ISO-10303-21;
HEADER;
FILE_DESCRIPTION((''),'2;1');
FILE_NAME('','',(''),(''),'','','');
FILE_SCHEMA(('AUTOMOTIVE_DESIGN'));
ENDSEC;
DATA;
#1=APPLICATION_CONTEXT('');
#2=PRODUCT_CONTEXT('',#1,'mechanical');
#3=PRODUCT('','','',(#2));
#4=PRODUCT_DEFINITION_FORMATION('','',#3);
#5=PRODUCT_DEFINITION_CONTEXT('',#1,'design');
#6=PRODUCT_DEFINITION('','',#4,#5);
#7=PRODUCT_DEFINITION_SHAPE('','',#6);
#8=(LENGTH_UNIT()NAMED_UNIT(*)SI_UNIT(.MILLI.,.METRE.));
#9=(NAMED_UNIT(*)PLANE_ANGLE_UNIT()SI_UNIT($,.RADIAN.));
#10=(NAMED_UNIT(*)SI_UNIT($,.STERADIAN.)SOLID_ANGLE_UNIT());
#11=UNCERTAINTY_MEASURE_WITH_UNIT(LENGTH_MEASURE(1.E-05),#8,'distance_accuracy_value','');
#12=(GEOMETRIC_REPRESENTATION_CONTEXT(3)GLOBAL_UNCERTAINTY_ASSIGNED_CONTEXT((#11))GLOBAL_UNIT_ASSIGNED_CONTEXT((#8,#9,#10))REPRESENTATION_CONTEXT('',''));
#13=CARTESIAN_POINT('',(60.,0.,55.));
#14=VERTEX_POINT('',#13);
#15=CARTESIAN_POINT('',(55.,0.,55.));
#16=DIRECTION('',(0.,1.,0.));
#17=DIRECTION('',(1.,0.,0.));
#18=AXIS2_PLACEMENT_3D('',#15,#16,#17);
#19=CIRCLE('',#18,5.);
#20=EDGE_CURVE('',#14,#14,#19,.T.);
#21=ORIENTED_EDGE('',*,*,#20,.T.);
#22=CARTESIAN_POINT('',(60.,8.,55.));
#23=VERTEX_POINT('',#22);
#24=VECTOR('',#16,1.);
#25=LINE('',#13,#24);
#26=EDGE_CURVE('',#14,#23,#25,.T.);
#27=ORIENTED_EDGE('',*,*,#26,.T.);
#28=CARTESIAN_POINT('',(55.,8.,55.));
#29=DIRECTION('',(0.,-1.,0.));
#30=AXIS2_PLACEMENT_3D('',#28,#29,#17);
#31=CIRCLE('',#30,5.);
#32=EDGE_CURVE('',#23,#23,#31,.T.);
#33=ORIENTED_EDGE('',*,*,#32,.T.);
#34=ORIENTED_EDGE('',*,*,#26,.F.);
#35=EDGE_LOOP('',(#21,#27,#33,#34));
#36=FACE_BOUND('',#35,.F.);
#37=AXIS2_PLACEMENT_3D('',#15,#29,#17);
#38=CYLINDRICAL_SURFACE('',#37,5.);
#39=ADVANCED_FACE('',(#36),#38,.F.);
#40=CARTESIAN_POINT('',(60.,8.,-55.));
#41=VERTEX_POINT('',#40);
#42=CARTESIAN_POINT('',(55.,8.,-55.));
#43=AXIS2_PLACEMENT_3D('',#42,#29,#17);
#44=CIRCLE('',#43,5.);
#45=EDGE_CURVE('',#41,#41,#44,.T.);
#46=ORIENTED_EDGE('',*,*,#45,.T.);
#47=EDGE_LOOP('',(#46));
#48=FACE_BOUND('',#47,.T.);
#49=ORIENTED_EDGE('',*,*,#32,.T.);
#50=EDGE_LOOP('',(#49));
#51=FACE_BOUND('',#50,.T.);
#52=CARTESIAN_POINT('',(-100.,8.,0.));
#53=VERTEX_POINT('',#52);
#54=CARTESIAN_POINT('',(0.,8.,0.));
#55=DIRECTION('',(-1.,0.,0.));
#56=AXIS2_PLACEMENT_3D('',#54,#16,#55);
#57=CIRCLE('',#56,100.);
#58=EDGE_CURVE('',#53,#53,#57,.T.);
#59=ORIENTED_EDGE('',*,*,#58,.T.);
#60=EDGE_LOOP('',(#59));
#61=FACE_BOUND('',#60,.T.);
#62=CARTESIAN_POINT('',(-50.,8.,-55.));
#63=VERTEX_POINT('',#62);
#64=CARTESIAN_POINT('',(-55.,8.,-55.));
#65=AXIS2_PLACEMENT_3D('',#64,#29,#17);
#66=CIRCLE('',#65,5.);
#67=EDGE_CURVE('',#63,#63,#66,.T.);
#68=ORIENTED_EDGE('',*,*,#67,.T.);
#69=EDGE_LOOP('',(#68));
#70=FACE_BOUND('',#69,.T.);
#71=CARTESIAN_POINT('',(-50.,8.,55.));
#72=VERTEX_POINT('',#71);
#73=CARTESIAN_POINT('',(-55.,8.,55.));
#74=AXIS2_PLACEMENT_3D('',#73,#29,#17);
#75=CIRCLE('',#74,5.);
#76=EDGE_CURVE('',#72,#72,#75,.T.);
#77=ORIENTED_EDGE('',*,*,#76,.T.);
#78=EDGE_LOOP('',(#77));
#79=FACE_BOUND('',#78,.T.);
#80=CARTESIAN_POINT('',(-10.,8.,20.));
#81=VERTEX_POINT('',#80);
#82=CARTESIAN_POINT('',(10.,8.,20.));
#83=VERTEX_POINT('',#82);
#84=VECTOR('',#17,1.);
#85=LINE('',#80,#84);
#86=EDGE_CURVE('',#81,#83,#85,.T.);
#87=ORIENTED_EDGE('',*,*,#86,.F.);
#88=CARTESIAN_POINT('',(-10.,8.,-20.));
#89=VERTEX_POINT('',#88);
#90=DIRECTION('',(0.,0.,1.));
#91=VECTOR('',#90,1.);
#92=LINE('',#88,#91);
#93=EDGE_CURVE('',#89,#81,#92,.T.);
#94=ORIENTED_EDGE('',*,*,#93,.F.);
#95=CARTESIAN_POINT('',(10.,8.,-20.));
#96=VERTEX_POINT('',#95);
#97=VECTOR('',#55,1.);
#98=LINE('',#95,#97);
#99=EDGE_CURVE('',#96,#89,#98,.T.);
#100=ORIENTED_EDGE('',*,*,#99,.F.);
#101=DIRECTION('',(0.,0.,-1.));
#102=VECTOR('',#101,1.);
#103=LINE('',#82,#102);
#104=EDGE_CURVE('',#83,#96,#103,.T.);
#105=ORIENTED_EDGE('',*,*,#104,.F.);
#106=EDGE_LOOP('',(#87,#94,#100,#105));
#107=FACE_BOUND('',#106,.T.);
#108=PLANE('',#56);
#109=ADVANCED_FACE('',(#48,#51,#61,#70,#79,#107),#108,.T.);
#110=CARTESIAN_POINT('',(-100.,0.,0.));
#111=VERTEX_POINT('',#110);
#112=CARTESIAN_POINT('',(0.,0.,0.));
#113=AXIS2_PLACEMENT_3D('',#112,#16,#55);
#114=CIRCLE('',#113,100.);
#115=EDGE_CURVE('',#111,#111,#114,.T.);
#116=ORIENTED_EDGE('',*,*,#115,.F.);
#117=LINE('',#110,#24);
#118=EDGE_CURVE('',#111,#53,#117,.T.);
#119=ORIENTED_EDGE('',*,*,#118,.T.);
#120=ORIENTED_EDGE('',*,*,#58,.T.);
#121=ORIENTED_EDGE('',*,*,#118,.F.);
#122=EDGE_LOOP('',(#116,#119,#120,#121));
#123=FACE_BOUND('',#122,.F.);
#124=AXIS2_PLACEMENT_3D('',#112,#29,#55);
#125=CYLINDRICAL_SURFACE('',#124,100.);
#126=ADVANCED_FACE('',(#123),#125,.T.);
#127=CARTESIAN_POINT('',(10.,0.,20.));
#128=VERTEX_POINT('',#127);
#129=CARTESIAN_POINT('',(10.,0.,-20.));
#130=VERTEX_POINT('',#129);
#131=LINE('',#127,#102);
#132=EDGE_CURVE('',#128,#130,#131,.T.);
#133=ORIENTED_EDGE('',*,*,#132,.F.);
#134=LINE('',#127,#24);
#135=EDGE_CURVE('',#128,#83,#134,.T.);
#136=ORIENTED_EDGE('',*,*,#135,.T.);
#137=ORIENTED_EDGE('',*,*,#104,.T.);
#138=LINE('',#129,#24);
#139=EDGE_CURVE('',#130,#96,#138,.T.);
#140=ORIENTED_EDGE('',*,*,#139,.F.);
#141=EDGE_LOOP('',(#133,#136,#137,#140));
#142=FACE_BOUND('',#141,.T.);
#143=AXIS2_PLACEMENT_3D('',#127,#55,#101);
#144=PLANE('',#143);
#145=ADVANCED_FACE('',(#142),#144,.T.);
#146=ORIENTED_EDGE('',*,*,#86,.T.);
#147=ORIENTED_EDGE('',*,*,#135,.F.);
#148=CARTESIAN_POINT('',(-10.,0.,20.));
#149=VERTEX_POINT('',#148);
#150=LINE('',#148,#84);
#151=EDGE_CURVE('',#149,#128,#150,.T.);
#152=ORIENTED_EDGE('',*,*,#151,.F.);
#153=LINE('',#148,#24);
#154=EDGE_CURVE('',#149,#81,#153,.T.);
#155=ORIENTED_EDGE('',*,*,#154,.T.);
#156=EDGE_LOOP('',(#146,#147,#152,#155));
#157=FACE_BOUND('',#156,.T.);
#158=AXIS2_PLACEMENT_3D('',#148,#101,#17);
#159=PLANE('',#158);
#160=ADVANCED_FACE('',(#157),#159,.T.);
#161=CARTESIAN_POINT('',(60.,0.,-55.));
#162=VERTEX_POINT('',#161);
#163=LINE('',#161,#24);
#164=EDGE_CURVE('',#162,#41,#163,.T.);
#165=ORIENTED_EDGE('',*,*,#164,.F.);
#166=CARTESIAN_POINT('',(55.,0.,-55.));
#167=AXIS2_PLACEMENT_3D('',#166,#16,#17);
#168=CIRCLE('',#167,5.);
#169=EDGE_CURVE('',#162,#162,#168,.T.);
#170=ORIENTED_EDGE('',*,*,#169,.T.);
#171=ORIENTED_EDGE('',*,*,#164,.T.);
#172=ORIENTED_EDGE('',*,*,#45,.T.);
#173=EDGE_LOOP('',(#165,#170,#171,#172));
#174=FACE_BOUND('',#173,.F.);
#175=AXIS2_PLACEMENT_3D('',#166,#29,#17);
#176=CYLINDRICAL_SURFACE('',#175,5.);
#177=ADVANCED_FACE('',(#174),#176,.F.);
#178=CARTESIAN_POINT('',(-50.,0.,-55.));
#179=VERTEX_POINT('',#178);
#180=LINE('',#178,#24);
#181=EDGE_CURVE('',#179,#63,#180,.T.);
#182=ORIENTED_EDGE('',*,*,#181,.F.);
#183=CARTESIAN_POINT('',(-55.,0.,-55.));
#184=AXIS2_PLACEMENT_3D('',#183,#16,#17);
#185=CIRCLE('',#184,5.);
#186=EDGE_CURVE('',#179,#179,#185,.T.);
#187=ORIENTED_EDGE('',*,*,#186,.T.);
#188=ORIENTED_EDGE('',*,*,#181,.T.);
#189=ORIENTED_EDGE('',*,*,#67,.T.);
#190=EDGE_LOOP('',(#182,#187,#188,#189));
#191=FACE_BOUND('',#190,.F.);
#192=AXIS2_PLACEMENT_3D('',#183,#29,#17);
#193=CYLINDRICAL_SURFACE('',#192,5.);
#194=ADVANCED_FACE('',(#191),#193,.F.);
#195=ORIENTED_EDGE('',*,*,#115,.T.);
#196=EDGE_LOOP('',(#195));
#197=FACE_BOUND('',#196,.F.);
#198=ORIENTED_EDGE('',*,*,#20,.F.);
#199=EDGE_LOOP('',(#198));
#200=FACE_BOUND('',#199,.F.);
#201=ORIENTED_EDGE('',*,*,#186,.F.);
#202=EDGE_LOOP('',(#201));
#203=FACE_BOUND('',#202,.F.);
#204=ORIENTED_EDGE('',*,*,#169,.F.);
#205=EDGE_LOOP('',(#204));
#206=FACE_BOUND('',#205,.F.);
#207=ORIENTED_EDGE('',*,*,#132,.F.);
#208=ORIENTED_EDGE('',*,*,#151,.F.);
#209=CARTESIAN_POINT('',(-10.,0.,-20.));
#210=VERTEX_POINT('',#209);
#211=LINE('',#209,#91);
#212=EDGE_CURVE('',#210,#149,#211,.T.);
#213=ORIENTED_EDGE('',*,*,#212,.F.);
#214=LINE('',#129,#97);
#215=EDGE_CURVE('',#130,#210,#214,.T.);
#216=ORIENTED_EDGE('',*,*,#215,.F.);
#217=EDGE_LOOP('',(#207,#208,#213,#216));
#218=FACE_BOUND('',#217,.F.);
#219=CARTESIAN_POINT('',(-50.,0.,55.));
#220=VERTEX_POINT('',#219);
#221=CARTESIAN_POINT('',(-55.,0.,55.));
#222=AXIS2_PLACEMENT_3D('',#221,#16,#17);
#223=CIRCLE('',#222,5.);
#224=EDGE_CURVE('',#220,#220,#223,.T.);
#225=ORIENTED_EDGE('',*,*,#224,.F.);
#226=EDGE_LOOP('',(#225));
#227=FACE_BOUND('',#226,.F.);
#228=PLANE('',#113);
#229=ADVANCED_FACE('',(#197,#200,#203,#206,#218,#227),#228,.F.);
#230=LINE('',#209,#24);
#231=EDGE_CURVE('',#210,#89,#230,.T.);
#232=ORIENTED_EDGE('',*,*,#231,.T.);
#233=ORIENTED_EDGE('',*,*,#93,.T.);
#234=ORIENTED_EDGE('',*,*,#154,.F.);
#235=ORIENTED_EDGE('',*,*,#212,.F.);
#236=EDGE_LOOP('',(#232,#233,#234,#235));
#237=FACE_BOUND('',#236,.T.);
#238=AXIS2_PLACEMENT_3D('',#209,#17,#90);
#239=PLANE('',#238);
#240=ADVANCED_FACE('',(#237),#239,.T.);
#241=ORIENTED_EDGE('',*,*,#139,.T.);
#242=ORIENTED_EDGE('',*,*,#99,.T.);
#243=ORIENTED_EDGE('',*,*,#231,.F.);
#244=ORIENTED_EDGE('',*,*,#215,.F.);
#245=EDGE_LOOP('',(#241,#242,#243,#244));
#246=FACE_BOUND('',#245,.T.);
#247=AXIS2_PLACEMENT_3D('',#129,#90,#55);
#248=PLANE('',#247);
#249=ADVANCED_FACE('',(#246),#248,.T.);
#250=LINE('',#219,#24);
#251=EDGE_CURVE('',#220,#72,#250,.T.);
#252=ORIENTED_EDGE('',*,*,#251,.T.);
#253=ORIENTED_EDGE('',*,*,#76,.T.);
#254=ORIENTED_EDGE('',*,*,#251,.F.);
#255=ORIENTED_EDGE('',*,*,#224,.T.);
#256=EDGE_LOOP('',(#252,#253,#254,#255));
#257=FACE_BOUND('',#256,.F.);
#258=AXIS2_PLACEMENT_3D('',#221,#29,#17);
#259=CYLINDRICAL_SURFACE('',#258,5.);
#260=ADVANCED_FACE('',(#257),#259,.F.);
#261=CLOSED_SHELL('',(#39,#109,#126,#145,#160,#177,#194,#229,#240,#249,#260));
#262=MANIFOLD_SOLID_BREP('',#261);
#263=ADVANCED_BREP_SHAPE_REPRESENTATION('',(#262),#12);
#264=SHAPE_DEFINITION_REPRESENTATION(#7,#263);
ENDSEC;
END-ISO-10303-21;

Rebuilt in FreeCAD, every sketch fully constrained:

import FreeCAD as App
import Part
import Sketcher

V = App.Vector
Q = App.Units.Quantity

doc = App.newDocument("Part")
body = doc.addObject("PartDesign::Body", "Body")

# Sketch on XZ plane
sketch1 = body.newObject("Sketcher::SketchObject", "Sketch")
sketch1.AttachmentSupport = (doc.getObject("XZ_Plane"), [""])
sketch1.MapMode = "FlatFace"
sketch1.addGeometry([
    Part.Circle(V(0, 0, 0), V(0, 0, 1), 100),  # 0
    Part.LineSegment(V(-10, -20, 0), V(10, -20, 0)),  # 1
    Part.LineSegment(V(10, -20, 0), V(10, 20, 0)),  # 2
    Part.LineSegment(V(10, 20, 0), V(-10, 20, 0)),  # 3
    Part.LineSegment(V(-10, 20, 0), V(-10, -20, 0)),  # 4
], False)
sketch1.addConstraint([
    Sketcher.Constraint("Coincident", 1, 2, 2, 1),
    Sketcher.Constraint("Coincident", 2, 2, 3, 1),
    Sketcher.Constraint("Coincident", 3, 2, 4, 1),
    Sketcher.Constraint("Coincident", 4, 2, 1, 1),
    Sketcher.Constraint("Horizontal", 1),
    Sketcher.Constraint("Vertical", 2),
    Sketcher.Constraint("Horizontal", 3),
    Sketcher.Constraint("Vertical", 4),
    Sketcher.Constraint("Coincident", 0, 3, -1, 1),
    Sketcher.Constraint("Symmetric", 1, 2, 3, 2, -1, 1),
    Sketcher.Constraint("Diameter", 0, Q("200 mm")),
    Sketcher.Constraint("DistanceX", 1, 1, 1, 2, Q("20 mm")),
    Sketcher.Constraint("DistanceY", 2, 1, 2, 2, Q("40 mm")),
])
pad1 = body.newObject("PartDesign::Pad", "Pad")
pad1.Profile = sketch1
pad1.Length = 8
pad1.Reversed = True

# Sketch on XZ plane
sketch2 = body.newObject("Sketcher::SketchObject", "Sketch001")
sketch2.AttachmentSupport = (doc.getObject("XZ_Plane"), [""])
sketch2.MapMode = "FlatFace"
sketch2.addGeometry([
    Part.Circle(V(-55, -55, 0), V(0, 0, 1), 5),
    Part.Circle(V(55, -55, 0), V(0, 0, 1), 5),
    Part.Circle(V(-55, 55, 0), V(0, 0, 1), 5),
    Part.Circle(V(55, 55, 0), V(0, 0, 1), 5),
], False)
sketch2.addConstraint([
    Sketcher.Constraint("Equal", 0, 1),
    Sketcher.Constraint("Equal", 1, 2),
    Sketcher.Constraint("Equal", 2, 3),
    Sketcher.Constraint("Symmetric", 1, 3, 2, 3, -1, 1),
    Sketcher.Constraint("Symmetric", 0, 3, 3, 3, -1, 1),
    Sketcher.Constraint("Symmetric", 0, 3, 1, 3, -2),
    Sketcher.Constraint("Diameter", 0, Q("10 mm")),
    Sketcher.Constraint("DistanceX", 0, 3, 1, 3, Q("110 mm")),
    Sketcher.Constraint("DistanceY", 0, 3, 2, 3, Q("110 mm")),
])
pocket1 = body.newObject("PartDesign::Pocket", "Pocket")
pocket1.Profile = sketch2
pocket1.Length = 8

doc.recompute()
